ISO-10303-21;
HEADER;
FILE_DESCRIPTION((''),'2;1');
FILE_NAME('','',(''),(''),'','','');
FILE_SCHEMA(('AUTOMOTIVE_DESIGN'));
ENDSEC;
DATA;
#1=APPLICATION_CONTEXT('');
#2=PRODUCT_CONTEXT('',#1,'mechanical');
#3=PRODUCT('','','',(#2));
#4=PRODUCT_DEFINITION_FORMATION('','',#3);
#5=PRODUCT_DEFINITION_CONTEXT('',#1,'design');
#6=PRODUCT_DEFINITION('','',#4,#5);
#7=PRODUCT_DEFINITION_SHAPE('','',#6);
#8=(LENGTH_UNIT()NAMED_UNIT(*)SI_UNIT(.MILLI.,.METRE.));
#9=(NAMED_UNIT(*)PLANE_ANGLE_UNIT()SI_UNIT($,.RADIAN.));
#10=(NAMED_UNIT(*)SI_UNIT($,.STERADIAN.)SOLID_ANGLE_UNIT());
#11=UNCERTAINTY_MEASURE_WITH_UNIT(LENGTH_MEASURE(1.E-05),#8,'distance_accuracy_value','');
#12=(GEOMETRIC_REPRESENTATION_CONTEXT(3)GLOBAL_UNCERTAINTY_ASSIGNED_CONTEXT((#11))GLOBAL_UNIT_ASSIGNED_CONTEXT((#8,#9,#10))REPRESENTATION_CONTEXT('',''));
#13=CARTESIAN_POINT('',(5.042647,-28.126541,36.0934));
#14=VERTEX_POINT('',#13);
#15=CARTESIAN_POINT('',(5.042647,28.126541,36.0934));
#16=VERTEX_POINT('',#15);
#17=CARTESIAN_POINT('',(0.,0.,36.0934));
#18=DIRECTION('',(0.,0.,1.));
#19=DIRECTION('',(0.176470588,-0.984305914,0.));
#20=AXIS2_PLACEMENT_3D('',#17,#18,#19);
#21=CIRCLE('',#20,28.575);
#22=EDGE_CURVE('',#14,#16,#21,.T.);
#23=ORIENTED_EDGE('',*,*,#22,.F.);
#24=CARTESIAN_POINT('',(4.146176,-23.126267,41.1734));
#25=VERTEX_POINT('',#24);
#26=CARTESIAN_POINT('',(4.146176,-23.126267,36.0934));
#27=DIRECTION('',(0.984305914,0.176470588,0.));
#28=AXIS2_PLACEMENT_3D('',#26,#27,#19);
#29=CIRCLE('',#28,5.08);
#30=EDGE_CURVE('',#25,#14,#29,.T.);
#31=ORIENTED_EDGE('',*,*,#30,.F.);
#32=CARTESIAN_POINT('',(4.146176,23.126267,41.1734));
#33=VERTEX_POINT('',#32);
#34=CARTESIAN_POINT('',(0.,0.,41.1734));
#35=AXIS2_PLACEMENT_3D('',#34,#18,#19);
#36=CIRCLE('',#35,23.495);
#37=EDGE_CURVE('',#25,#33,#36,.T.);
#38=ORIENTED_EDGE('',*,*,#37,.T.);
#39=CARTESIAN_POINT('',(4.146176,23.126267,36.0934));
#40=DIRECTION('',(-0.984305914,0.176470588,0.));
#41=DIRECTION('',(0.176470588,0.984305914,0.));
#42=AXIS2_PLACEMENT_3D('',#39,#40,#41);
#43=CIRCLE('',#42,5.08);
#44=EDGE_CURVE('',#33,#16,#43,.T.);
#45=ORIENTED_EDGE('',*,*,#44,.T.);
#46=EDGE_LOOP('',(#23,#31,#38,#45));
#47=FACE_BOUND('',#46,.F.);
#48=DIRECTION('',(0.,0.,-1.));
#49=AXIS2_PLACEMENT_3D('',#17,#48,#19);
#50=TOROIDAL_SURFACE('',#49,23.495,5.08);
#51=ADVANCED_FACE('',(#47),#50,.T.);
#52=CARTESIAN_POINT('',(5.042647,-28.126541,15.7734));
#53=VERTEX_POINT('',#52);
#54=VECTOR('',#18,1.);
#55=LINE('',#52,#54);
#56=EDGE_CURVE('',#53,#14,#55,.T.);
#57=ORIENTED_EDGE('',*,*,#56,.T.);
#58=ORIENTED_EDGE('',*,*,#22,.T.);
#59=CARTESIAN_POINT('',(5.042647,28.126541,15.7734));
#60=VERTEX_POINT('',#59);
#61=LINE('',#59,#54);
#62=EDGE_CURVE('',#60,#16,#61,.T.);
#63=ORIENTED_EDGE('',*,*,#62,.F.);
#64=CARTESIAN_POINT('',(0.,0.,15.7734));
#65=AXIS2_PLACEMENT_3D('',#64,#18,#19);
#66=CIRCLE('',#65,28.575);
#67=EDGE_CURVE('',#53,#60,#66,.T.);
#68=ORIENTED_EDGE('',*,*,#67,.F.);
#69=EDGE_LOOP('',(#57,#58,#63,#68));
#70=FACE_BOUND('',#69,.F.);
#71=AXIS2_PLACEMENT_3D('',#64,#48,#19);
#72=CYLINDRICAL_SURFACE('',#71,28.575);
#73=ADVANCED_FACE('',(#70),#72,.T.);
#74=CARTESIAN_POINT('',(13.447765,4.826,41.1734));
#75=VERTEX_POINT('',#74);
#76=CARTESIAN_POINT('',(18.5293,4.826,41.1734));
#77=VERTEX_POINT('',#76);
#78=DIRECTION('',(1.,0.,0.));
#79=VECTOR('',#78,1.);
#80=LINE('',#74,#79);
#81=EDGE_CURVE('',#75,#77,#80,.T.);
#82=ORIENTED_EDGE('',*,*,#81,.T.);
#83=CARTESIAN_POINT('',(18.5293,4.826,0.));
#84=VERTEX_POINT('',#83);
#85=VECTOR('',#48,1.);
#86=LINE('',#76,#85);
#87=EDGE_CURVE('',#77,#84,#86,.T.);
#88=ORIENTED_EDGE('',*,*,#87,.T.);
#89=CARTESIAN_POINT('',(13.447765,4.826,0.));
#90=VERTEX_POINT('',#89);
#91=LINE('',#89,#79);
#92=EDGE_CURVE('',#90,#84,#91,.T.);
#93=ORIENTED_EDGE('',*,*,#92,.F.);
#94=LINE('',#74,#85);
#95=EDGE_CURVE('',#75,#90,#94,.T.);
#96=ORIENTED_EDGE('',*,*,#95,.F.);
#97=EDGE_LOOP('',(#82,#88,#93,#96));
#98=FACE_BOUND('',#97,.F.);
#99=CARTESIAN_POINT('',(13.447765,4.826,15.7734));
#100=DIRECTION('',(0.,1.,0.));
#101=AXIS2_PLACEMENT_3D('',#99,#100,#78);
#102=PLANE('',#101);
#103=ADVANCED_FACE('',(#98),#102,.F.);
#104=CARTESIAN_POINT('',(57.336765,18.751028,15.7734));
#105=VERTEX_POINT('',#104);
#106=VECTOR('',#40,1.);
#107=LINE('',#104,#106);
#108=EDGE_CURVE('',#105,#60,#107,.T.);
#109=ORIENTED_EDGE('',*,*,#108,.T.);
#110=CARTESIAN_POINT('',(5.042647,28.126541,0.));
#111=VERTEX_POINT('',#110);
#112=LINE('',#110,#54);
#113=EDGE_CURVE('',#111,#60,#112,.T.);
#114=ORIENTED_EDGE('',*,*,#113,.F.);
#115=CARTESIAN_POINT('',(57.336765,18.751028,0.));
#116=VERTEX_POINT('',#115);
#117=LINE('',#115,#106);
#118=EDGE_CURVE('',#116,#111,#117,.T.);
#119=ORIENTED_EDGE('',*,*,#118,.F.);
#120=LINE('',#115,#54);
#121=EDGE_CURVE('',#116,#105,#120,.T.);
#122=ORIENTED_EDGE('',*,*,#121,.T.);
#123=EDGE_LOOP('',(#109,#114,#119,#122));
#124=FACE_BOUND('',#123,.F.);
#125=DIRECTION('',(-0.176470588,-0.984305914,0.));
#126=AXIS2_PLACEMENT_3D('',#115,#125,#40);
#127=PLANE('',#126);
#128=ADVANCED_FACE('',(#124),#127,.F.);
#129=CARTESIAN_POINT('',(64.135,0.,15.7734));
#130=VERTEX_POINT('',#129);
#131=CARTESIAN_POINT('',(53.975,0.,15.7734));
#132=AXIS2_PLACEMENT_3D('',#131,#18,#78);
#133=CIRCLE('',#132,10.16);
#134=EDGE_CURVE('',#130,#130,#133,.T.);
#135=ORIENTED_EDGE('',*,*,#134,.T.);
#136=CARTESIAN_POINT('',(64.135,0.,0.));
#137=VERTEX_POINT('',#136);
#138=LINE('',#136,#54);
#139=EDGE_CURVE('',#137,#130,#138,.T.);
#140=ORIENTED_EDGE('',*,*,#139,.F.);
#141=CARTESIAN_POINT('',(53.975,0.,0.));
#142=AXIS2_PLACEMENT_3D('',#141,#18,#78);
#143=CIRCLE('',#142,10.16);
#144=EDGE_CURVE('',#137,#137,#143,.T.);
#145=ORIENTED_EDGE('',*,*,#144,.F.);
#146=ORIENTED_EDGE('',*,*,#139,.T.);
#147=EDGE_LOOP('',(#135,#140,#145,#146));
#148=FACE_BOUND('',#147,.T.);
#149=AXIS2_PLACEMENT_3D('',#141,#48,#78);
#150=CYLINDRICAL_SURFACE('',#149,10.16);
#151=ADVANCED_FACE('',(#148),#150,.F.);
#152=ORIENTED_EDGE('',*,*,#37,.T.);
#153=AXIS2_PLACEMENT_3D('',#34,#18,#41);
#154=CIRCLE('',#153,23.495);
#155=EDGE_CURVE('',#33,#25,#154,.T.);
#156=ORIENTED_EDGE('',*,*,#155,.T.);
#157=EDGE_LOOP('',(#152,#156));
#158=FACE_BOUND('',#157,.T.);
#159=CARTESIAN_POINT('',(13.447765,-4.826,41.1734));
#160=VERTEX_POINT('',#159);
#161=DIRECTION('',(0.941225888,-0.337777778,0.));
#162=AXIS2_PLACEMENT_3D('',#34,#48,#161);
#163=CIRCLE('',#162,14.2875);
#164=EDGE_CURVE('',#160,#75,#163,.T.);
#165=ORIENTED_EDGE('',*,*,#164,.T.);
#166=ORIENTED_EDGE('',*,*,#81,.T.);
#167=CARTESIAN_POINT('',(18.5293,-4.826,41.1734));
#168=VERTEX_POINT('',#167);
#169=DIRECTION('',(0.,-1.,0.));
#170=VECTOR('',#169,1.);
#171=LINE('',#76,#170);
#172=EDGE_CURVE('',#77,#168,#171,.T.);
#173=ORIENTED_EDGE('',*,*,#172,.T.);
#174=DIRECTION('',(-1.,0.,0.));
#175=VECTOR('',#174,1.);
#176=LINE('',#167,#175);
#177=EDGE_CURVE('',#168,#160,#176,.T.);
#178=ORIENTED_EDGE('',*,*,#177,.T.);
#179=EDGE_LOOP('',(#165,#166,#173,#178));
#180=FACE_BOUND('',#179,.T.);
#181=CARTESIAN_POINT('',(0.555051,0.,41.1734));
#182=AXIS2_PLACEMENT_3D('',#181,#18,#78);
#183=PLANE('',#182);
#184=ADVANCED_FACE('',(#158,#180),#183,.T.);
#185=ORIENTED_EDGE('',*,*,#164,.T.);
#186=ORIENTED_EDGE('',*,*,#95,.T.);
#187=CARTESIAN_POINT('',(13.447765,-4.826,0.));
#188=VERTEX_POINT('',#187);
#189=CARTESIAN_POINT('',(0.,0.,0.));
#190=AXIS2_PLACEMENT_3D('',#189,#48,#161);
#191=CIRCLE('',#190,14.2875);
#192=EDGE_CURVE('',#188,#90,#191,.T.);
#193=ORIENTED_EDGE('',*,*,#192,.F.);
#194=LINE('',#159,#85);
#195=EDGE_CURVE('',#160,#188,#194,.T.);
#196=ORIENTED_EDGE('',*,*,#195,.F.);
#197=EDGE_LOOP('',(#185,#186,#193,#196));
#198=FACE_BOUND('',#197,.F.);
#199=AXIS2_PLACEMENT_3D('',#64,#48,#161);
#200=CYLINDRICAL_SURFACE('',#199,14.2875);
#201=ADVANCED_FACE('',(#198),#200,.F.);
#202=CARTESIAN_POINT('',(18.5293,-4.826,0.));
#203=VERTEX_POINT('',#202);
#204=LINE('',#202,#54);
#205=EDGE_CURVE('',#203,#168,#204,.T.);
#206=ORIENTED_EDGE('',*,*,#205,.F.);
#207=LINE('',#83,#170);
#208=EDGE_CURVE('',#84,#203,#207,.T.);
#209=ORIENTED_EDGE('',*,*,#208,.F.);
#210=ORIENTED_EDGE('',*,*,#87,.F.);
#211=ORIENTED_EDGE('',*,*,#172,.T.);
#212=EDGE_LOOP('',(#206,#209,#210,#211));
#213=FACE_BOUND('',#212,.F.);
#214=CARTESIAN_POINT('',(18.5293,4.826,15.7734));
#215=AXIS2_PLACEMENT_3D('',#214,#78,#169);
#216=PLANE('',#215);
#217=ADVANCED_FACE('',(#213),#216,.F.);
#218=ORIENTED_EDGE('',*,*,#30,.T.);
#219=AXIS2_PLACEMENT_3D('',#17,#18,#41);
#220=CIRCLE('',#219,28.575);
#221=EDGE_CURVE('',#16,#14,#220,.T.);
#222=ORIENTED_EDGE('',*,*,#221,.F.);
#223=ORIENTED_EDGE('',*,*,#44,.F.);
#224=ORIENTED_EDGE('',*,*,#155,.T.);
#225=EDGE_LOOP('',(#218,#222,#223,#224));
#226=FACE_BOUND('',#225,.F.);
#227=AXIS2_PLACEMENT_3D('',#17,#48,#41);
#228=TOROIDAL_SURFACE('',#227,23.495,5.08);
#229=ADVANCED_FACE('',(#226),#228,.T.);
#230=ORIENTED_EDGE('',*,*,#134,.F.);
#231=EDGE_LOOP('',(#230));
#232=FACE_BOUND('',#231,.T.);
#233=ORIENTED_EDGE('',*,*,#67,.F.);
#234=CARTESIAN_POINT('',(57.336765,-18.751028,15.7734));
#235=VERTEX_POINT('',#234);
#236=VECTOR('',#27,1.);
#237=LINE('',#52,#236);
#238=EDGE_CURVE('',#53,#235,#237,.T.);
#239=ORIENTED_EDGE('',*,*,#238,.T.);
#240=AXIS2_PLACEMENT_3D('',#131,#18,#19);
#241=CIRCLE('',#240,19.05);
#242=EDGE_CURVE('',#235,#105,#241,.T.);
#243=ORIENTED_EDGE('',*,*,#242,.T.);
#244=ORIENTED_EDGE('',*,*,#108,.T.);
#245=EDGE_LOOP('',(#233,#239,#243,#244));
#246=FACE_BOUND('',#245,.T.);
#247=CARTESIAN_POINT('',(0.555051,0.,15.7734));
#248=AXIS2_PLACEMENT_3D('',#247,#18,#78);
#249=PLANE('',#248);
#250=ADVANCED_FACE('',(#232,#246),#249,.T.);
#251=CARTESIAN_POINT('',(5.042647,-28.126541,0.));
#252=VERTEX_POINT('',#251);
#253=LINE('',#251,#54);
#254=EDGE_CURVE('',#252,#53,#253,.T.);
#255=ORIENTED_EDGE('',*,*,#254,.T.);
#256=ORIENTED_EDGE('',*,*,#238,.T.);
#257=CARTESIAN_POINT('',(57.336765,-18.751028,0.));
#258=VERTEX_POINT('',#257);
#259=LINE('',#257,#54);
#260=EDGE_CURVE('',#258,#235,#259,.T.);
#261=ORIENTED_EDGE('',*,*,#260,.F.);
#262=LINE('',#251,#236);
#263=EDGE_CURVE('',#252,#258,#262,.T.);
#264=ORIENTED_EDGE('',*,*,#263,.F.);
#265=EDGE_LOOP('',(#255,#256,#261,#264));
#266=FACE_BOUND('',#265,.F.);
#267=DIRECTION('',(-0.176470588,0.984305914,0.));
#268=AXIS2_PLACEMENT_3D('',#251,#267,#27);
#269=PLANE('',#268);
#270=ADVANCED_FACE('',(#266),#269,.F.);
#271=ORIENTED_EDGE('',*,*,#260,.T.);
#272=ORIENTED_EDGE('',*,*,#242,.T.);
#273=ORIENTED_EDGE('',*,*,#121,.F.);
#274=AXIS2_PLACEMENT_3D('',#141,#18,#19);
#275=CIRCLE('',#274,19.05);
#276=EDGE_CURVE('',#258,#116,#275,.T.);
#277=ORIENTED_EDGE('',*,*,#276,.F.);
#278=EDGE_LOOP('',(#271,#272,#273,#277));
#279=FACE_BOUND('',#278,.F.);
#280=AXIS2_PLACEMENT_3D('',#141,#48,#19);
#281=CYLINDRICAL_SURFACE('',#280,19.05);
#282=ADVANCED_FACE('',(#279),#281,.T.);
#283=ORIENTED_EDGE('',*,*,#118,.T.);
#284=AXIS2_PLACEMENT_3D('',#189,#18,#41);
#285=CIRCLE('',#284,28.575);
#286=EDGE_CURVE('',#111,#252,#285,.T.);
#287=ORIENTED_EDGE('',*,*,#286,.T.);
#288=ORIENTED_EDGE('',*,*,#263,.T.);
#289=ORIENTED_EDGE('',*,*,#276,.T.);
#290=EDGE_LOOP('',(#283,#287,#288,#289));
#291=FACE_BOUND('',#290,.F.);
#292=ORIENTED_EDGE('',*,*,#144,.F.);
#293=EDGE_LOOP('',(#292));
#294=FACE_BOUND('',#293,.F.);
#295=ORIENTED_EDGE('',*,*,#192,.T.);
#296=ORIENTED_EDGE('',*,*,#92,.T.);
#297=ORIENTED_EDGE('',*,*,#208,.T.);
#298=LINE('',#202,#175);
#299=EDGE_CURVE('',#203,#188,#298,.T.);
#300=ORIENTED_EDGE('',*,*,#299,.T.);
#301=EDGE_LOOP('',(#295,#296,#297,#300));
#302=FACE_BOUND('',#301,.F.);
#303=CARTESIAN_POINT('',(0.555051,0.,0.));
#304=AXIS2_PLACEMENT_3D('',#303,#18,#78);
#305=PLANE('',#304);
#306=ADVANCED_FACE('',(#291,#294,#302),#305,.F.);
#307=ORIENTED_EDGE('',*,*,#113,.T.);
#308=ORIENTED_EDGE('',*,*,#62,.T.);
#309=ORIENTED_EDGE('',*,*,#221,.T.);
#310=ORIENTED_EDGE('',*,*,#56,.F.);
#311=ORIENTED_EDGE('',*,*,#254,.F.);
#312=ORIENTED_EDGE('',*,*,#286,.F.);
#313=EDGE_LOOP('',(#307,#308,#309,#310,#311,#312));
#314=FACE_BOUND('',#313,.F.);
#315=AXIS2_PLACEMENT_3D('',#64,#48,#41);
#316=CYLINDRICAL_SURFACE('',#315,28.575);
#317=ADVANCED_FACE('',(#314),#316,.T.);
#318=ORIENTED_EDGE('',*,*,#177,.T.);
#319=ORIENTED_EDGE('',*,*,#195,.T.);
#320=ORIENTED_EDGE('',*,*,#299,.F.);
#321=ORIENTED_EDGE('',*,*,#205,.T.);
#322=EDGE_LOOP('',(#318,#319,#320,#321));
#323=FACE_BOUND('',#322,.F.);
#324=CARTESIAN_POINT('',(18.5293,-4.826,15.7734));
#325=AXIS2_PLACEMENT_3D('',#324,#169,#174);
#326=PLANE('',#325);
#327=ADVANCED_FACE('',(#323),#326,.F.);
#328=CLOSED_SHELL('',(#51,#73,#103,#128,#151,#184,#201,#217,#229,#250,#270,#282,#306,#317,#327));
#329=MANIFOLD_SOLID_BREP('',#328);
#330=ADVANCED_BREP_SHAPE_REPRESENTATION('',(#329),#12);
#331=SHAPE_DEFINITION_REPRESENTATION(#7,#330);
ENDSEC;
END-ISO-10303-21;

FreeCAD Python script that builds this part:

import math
import FreeCAD as App
import Part
import Sketcher
Q = App.Units.Quantity


def edges_at(feature, points):
    """Names of the edges that pass closest to the given points."""
    edges = feature.Shape.Edges
    near = lambda p: min(range(len(edges)), key=lambda i: edges[i].distToShape(Part.Vertex(*p))[0])
    return sorted({f"Edge{near(p) + 1}" for p in points})

doc = App.newDocument("Part")
params = doc.addObject("Spreadsheet::Sheet", "Params")
for row, (alias, value) in enumerate([
    ("sketch1_diameter", "0.8 in"),
    ("sketch1_radius", "0.75 in"),
    ("sketch1_radius2", "1.125 in"),
    ("sketch1_radius3", "0.5625 in"),
    ("sketch1_height", "0.38 in"),
    ("pad1_length", "0.621 in"),
    ("sketch2_radius", "1.125 in"),
    ("sketch2_radius2", "0.5625 in"),
    ("sketch2_height", "0.38 in"),
    ("pad2_length", "1 in"),
    ("fillet_radius", "0.2 in"),
], start=1):
    params.set(f"A{row}", alias)
    params.set(f"B{row}", "=" + value)
    params.setAlias(f"B{row}", alias)

body = doc.addObject("PartDesign::Body", "Body")

# Sketch on XY plane
sketch1 = body.newObject("Sketcher::SketchObject", "Sketch")
sketch1.AttachmentSupport = (doc.getObject("XY_Plane"), [""])
sketch1.MapMode = "FlatFace"
sketch1.addGeometry([
    Part.ArcOfCircle(Part.Circle(App.Vector(0, 0, 0), App.Vector(0, 0, 1), 29), math.radians(80), math.radians(280)),  # 0
    Part.LineSegment(App.Vector(5, -28, 0), App.Vector(57, -19, 0)),  # 1
    Part.ArcOfCircle(Part.Circle(App.Vector(54, 0, 0), App.Vector(0, 0, 1), 19), math.radians(-80), math.radians(80)),  # 2
    Part.LineSegment(App.Vector(57, 19, 0), App.Vector(5, 28, 0)),  # 3
    Part.LineSegment(App.Vector(19, -5, 0), App.Vector(13, -5, 0)),  # 4
    Part.ArcOfCircle(Part.Circle(App.Vector(0, 0, 0), App.Vector(0, 0, 1), 14), math.radians(20), math.radians(340)),  # 5
    Part.LineSegment(App.Vector(13, 5, 0), App.Vector(19, 5, 0)),  # 6
    Part.LineSegment(App.Vector(19, 5, 0), App.Vector(19, -5, 0)),  # 7
    Part.Circle(App.Vector(54, 0, 0), App.Vector(0, 0, 1), 10),  # 8
], False)
sketch1.addConstraint([
    Sketcher.Constraint("Tangent", 0, 2, 1, 1),
    Sketcher.Constraint("Tangent", 1, 2, 2, 1),
    Sketcher.Constraint("Tangent", 2, 2, 3, 1),
    Sketcher.Constraint("Tangent", 3, 2, 0, 1),
    Sketcher.Constraint("Coincident", 4, 2, 5, 2),
    Sketcher.Constraint("Coincident", 5, 1, 6, 1),
    Sketcher.Constraint("Coincident", 6, 2, 7, 1),
    Sketcher.Constraint("Coincident", 7, 2, 4, 1),
    Sketcher.Constraint("Horizontal", 4),
    Sketcher.Constraint("Horizontal", 6),
    Sketcher.Constraint("Vertical", 7),
    Sketcher.Constraint("Coincident", 0, 3, -1, 1),
    Sketcher.Constraint("Coincident", 5, 3, -1, 1),
    Sketcher.Constraint("Coincident", 8, 3, 2, 3),
    Sketcher.Constraint("PointOnObject", 2, 3, -1),
    Sketcher.Constraint("Vertical", 4, 2, 5, 1),
    Sketcher.Constraint("Diameter", 8, Q("0.8 in")),
    Sketcher.Constraint("Radius", 2, Q("0.75 in")),
    Sketcher.Constraint("Radius", 0, Q("1.125 in")),
    Sketcher.Constraint("Radius", 5, Q("0.5625 in")),
    Sketcher.Constraint("DistanceY", 7, 2, 7, 1, Q("0.38 in")),
    Sketcher.Constraint("DistanceX", -1, 1, 2, 3, Q("2.125 in")),
    Sketcher.Constraint("DistanceX", -1, 1, 6, 2, Q("0.7295 in")),
])
sketch1.setExpression("Constraints[16]", "Params.sketch1_diameter")
sketch1.setExpression("Constraints[17]", "Params.sketch1_radius")
sketch1.setExpression("Constraints[18]", "Params.sketch1_radius2")
sketch1.setExpression("Constraints[19]", "Params.sketch1_radius3")
sketch1.setExpression("Constraints[20]", "Params.sketch1_height")
pad1 = body.newObject("PartDesign::Pad", "Pad")
pad1.Profile = sketch1
pad1.setExpression("Length", "Params.pad1_length")

# Sketch on XY plane
sketch2 = body.newObject("Sketcher::SketchObject", "Sketch001")
sketch2.AttachmentSupport = (doc.getObject("XY_Plane"), [""])
sketch2.MapMode = "FlatFace"
sketch2.AttachmentOffset = App.Placement(App.Vector(0, 0, 0.621 * 25.4), App.Rotation())
sketch2.addGeometry([
    Part.ArcOfCircle(Part.Circle(App.Vector(0, 0, 0), App.Vector(0, 0, 1), 29), math.radians(-80), math.radians(80)),  # 0
    Part.ArcOfCircle(Part.Circle(App.Vector(0, 0, 0), App.Vector(0, 0, 1), 29), math.radians(80), math.radians(280)),  # 1
    Part.LineSegment(App.Vector(19, 5, 0), App.Vector(19, -5, 0)),  # 2
    Part.LineSegment(App.Vector(19, -5, 0), App.Vector(13, -5, 0)),  # 3
    Part.ArcOfCircle(Part.Circle(App.Vector(0, 0, 0), App.Vector(0, 0, 1), 14), math.radians(20), math.radians(340)),  # 4
    Part.LineSegment(App.Vector(13, 5, 0), App.Vector(19, 5, 0)),  # 5
], False)
sketch2.addConstraint([
    Sketcher.Constraint("Tangent", 0, 1, 1, 2),
    Sketcher.Constraint("Coincident", 1, 1, 0, 2),
    Sketcher.Constraint("Coincident", 2, 2, 3, 1),
    Sketcher.Constraint("Coincident", 3, 2, 4, 2),
    Sketcher.Constraint("Coincident", 4, 1, 5, 1),
    Sketcher.Constraint("Coincident", 5, 2, 2, 1),
    Sketcher.Constraint("Vertical", 2),
    Sketcher.Constraint("Horizontal", 3),
    Sketcher.Constraint("Horizontal", 5),
    Sketcher.Constraint("Coincident", 0, 3, -1, 1),
    Sketcher.Constraint("Coincident", 4, 3, -1, 1),
    Sketcher.Constraint("Vertical", 0, 1, 1, 1),
    Sketcher.Constraint("Vertical", 3, 2, 4, 1),
    Sketcher.Constraint("Radius", 0, Q("1.125 in")),
    Sketcher.Constraint("Radius", 4, Q("0.5625 in")),
    Sketcher.Constraint("DistanceY", 2, 2, 2, 1, Q("0.38 in")),
    Sketcher.Constraint("DistanceX", -1, 1, 2, 2, Q("0.7295 in")),
    Sketcher.Constraint("DistanceY", 0, 1, -1, 1, Q("28.126541 mm")),
])
sketch2.setExpression("Constraints[13]", "Params.sketch2_radius")
sketch2.setExpression("Constraints[14]", "Params.sketch2_radius2")
sketch2.setExpression("Constraints[15]", "Params.sketch2_height")
pad2 = body.newObject("PartDesign::Pad", "Pad001")
pad2.Profile = sketch2
pad2.setExpression("Length", "Params.pad2_length")
doc.recompute()

fillet = body.newObject("PartDesign::Fillet", "Fillet")
fillet.Base = (pad2, edges_at(pad2, [(-28.575, 0, 41.173)]))
fillet.setExpression("Radius", "Params.fillet_radius")

doc.recompute()
